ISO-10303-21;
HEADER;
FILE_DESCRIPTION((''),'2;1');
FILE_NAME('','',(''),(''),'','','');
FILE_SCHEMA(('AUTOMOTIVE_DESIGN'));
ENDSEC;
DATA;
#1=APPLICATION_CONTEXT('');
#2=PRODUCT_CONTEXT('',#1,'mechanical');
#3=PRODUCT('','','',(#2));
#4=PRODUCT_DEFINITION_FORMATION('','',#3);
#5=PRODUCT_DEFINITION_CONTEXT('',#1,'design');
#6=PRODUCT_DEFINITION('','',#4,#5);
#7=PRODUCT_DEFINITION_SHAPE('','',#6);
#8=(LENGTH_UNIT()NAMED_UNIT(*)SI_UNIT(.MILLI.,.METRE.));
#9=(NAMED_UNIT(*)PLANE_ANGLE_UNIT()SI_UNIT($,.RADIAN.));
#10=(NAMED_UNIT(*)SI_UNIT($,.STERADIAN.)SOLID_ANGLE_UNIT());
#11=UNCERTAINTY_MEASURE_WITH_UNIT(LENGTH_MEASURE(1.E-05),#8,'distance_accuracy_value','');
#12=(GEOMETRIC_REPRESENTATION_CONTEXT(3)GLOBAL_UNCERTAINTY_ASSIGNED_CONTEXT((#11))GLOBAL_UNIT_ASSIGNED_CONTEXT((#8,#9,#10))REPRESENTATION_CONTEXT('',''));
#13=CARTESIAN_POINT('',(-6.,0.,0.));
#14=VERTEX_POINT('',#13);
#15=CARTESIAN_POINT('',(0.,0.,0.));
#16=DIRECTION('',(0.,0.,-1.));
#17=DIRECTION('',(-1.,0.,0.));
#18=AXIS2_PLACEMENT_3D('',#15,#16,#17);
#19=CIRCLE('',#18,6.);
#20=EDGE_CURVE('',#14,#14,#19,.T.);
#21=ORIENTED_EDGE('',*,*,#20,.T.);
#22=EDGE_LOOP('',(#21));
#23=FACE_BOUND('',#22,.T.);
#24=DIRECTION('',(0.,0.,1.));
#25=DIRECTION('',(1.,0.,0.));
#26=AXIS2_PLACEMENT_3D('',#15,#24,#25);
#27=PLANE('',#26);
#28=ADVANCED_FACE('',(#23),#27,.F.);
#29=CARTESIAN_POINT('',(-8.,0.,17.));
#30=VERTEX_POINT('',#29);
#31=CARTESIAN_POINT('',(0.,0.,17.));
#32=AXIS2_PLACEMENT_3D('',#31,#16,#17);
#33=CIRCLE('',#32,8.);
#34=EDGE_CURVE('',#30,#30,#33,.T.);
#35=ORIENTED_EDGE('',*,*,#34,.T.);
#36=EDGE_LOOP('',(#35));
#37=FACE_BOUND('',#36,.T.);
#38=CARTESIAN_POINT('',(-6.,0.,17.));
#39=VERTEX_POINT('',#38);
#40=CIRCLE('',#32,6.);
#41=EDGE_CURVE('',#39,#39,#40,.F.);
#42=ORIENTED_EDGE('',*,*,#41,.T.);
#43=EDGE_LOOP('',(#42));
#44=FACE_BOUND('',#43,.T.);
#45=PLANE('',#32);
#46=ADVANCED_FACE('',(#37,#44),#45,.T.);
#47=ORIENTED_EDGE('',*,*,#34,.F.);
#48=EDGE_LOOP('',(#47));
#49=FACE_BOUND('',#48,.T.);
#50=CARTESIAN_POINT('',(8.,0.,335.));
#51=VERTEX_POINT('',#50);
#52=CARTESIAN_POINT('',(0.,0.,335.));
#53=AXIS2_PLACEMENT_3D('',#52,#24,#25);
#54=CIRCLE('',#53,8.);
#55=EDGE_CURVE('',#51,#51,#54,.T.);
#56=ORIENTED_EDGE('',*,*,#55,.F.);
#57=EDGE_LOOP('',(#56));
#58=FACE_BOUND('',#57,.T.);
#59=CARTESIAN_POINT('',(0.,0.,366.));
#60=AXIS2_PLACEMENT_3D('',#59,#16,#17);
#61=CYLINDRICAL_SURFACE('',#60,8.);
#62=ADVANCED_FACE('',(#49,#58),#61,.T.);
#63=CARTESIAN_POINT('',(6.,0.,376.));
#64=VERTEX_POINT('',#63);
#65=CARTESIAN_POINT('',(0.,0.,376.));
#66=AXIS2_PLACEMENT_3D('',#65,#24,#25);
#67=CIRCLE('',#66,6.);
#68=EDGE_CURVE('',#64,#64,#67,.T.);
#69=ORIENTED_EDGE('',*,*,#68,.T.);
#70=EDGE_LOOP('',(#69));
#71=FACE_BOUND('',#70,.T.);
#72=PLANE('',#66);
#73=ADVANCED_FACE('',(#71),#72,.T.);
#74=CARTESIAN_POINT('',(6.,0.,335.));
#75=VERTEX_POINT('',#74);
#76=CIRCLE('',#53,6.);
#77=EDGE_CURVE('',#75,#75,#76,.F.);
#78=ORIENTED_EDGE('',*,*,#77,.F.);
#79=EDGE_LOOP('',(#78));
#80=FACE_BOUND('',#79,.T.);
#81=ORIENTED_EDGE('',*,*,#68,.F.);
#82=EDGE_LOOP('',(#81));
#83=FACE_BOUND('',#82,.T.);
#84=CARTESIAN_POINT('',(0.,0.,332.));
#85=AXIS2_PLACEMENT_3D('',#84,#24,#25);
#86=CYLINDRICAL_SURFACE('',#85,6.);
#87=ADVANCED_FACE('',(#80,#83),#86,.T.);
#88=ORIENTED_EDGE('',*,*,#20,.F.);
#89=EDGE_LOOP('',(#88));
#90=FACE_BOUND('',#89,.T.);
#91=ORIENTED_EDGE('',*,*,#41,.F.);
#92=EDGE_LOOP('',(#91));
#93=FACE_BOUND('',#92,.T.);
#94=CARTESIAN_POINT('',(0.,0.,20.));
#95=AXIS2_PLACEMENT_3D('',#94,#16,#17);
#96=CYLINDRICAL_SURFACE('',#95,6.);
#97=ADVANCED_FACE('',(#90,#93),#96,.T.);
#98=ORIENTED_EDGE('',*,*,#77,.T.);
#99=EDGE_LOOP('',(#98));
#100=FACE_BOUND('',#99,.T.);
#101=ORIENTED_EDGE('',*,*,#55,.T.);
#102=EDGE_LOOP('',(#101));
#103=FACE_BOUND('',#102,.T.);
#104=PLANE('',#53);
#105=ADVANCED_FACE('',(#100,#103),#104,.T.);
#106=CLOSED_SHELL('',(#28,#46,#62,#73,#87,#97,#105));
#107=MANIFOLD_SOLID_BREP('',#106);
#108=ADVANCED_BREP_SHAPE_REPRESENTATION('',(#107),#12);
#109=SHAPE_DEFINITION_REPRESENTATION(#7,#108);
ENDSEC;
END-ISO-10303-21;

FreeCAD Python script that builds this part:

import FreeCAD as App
import Part
import Sketcher

V = App.Vector

doc = App.newDocument("Part")
body = doc.addObject("PartDesign::Body", "Body")

sketch1 = body.newObject("Sketcher::SketchObject", "Sketch")
sketch1.AttachmentSupport = (doc.getObject("XY_Plane"), [""])
sketch1.MapMode = "FlatFace"
sketch1.addGeometry(Part.Circle(V(0, 0, 0), V(0, 0, 1), 8), False)
sketch1.addConstraint([
    Sketcher.Constraint("Coincident", 0, 3, -1, 1),
    Sketcher.Constraint("Diameter", 0, 16.0),
])
pad1 = body.newObject("PartDesign::Pad", "Pad")
pad1.Profile = sketch1
pad1.Length = 366

sketch2 = body.newObject("Sketcher::SketchObject", "Sketch001")
sketch2.AttachmentSupport = (doc.getObject("XY_Plane"), [""])
sketch2.MapMode = "FlatFace"
sketch2.AttachmentOffset = App.Placement(V(0, 0, 366), App.Rotation())
sketch2.addGeometry([
    Part.Circle(V(0, 0, 0), V(0, 0, 1), 8),
    Part.Circle(V(0, 0, 0), V(0, 0, 1), 6),
], False)
sketch2.addConstraint([
    Sketcher.Constraint("Coincident", 0, 3, -1, 1),
    Sketcher.Constraint("Coincident", 1, 3, -1, 1),
    Sketcher.Constraint("Diameter", 0, 16.0),
    Sketcher.Constraint("Diameter", 1, 12.0),
])
pocket1 = body.newObject("PartDesign::Pocket", "Pocket")
pocket1.Profile = sketch2
pocket1.Length = 34

sketch3 = body.newObject("Sketcher::SketchObject", "Sketch002")
sketch3.AttachmentSupport = (doc.getObject("XY_Plane"), [""])
sketch3.MapMode = "FlatFace"
sketch3.addGeometry([
    Part.Circle(V(0, 0, 0), V(0, 0, 1), 8),
    Part.Circle(V(0, 0, 0), V(0, 0, 1), 6),
], False)
sketch3.addConstraint([
    Sketcher.Constraint("Coincident", 0, 3, -1, 1),
    Sketcher.Constraint("Coincident", 1, 3, -1, 1),
    Sketcher.Constraint("Diameter", 0, 16.0),
    Sketcher.Constraint("Diameter", 1, 12.0),
])
pocket2 = body.newObject("PartDesign::Pocket", "Pocket001")
pocket2.Profile = sketch3
pocket2.Length = 20
pocket2.Reversed = True

sketch4 = body.newObject("Sketcher::SketchObject", "Sketch003")
sketch4.AttachmentSupport = (doc.getObject("XY_Plane"), [""])
sketch4.MapMode = "FlatFace"
sketch4.AttachmentOffset = App.Placement(V(0, 0, 366), App.Rotation())
sketch4.addGeometry(Part.Circle(V(0, 0, 0), V(0, 0, 1), 6), False)
sketch4.addConstraint([
    Sketcher.Constraint("Coincident", 0, 3, -1, 1),
    Sketcher.Constraint("Diameter", 0, 12.0),
])
pad2 = body.newObject("PartDesign::Pad", "Pad001")
pad2.Profile = sketch4
pad2.Length = 10

sketch5 = body.newObject("Sketcher::SketchObject", "Sketch004")
sketch5.AttachmentSupport = (doc.getObject("XY_Plane"), [""])
sketch5.MapMode = "FlatFace"
sketch5.AttachmentOffset = App.Placement(V(0, 0, 332), App.Rotation())
sketch5.addGeometry([
    Part.Circle(V(0, 0, 0), V(0, 0, 1), 8),
    Part.Circle(V(0, 0, 0), V(0, 0, 1), 6),
], False)
sketch5.addConstraint([
    Sketcher.Constraint("Coincident", 0, 3, -1, 1),
    Sketcher.Constraint("Coincident", 1, 3, -1, 1),
    Sketcher.Constraint("Diameter", 0, 16.0),
    Sketcher.Constraint("Diameter", 1, 12.0),
])
pad3 = body.newObject("PartDesign::Pad", "Pad002")
pad3.Profile = sketch5
pad3.Length = 3

sketch6 = body.newObject("Sketcher::SketchObject", "Sketch005")
sketch6.AttachmentSupport = (doc.getObject("XY_Plane"), [""])
sketch6.MapMode = "FlatFace"
sketch6.AttachmentOffset = App.Placement(V(0, 0, 20), App.Rotation())
sketch6.addGeometry([
    Part.Circle(V(0, 0, 0), V(0, 0, 1), 8),
    Part.Circle(V(0, 0, 0), V(0, 0, 1), 6),
], False)
sketch6.addConstraint([
    Sketcher.Constraint("Coincident", 0, 3, -1, 1),
    Sketcher.Constraint("Coincident", 1, 3, -1, 1),
    Sketcher.Constraint("Diameter", 0, 16.0),
    Sketcher.Constraint("Diameter", 1, 12.0),
])
pad4 = body.newObject("PartDesign::Pad", "Pad003")
pad4.Profile = sketch6
pad4.Length = 3
pad4.Reversed = True

doc.recompute()
